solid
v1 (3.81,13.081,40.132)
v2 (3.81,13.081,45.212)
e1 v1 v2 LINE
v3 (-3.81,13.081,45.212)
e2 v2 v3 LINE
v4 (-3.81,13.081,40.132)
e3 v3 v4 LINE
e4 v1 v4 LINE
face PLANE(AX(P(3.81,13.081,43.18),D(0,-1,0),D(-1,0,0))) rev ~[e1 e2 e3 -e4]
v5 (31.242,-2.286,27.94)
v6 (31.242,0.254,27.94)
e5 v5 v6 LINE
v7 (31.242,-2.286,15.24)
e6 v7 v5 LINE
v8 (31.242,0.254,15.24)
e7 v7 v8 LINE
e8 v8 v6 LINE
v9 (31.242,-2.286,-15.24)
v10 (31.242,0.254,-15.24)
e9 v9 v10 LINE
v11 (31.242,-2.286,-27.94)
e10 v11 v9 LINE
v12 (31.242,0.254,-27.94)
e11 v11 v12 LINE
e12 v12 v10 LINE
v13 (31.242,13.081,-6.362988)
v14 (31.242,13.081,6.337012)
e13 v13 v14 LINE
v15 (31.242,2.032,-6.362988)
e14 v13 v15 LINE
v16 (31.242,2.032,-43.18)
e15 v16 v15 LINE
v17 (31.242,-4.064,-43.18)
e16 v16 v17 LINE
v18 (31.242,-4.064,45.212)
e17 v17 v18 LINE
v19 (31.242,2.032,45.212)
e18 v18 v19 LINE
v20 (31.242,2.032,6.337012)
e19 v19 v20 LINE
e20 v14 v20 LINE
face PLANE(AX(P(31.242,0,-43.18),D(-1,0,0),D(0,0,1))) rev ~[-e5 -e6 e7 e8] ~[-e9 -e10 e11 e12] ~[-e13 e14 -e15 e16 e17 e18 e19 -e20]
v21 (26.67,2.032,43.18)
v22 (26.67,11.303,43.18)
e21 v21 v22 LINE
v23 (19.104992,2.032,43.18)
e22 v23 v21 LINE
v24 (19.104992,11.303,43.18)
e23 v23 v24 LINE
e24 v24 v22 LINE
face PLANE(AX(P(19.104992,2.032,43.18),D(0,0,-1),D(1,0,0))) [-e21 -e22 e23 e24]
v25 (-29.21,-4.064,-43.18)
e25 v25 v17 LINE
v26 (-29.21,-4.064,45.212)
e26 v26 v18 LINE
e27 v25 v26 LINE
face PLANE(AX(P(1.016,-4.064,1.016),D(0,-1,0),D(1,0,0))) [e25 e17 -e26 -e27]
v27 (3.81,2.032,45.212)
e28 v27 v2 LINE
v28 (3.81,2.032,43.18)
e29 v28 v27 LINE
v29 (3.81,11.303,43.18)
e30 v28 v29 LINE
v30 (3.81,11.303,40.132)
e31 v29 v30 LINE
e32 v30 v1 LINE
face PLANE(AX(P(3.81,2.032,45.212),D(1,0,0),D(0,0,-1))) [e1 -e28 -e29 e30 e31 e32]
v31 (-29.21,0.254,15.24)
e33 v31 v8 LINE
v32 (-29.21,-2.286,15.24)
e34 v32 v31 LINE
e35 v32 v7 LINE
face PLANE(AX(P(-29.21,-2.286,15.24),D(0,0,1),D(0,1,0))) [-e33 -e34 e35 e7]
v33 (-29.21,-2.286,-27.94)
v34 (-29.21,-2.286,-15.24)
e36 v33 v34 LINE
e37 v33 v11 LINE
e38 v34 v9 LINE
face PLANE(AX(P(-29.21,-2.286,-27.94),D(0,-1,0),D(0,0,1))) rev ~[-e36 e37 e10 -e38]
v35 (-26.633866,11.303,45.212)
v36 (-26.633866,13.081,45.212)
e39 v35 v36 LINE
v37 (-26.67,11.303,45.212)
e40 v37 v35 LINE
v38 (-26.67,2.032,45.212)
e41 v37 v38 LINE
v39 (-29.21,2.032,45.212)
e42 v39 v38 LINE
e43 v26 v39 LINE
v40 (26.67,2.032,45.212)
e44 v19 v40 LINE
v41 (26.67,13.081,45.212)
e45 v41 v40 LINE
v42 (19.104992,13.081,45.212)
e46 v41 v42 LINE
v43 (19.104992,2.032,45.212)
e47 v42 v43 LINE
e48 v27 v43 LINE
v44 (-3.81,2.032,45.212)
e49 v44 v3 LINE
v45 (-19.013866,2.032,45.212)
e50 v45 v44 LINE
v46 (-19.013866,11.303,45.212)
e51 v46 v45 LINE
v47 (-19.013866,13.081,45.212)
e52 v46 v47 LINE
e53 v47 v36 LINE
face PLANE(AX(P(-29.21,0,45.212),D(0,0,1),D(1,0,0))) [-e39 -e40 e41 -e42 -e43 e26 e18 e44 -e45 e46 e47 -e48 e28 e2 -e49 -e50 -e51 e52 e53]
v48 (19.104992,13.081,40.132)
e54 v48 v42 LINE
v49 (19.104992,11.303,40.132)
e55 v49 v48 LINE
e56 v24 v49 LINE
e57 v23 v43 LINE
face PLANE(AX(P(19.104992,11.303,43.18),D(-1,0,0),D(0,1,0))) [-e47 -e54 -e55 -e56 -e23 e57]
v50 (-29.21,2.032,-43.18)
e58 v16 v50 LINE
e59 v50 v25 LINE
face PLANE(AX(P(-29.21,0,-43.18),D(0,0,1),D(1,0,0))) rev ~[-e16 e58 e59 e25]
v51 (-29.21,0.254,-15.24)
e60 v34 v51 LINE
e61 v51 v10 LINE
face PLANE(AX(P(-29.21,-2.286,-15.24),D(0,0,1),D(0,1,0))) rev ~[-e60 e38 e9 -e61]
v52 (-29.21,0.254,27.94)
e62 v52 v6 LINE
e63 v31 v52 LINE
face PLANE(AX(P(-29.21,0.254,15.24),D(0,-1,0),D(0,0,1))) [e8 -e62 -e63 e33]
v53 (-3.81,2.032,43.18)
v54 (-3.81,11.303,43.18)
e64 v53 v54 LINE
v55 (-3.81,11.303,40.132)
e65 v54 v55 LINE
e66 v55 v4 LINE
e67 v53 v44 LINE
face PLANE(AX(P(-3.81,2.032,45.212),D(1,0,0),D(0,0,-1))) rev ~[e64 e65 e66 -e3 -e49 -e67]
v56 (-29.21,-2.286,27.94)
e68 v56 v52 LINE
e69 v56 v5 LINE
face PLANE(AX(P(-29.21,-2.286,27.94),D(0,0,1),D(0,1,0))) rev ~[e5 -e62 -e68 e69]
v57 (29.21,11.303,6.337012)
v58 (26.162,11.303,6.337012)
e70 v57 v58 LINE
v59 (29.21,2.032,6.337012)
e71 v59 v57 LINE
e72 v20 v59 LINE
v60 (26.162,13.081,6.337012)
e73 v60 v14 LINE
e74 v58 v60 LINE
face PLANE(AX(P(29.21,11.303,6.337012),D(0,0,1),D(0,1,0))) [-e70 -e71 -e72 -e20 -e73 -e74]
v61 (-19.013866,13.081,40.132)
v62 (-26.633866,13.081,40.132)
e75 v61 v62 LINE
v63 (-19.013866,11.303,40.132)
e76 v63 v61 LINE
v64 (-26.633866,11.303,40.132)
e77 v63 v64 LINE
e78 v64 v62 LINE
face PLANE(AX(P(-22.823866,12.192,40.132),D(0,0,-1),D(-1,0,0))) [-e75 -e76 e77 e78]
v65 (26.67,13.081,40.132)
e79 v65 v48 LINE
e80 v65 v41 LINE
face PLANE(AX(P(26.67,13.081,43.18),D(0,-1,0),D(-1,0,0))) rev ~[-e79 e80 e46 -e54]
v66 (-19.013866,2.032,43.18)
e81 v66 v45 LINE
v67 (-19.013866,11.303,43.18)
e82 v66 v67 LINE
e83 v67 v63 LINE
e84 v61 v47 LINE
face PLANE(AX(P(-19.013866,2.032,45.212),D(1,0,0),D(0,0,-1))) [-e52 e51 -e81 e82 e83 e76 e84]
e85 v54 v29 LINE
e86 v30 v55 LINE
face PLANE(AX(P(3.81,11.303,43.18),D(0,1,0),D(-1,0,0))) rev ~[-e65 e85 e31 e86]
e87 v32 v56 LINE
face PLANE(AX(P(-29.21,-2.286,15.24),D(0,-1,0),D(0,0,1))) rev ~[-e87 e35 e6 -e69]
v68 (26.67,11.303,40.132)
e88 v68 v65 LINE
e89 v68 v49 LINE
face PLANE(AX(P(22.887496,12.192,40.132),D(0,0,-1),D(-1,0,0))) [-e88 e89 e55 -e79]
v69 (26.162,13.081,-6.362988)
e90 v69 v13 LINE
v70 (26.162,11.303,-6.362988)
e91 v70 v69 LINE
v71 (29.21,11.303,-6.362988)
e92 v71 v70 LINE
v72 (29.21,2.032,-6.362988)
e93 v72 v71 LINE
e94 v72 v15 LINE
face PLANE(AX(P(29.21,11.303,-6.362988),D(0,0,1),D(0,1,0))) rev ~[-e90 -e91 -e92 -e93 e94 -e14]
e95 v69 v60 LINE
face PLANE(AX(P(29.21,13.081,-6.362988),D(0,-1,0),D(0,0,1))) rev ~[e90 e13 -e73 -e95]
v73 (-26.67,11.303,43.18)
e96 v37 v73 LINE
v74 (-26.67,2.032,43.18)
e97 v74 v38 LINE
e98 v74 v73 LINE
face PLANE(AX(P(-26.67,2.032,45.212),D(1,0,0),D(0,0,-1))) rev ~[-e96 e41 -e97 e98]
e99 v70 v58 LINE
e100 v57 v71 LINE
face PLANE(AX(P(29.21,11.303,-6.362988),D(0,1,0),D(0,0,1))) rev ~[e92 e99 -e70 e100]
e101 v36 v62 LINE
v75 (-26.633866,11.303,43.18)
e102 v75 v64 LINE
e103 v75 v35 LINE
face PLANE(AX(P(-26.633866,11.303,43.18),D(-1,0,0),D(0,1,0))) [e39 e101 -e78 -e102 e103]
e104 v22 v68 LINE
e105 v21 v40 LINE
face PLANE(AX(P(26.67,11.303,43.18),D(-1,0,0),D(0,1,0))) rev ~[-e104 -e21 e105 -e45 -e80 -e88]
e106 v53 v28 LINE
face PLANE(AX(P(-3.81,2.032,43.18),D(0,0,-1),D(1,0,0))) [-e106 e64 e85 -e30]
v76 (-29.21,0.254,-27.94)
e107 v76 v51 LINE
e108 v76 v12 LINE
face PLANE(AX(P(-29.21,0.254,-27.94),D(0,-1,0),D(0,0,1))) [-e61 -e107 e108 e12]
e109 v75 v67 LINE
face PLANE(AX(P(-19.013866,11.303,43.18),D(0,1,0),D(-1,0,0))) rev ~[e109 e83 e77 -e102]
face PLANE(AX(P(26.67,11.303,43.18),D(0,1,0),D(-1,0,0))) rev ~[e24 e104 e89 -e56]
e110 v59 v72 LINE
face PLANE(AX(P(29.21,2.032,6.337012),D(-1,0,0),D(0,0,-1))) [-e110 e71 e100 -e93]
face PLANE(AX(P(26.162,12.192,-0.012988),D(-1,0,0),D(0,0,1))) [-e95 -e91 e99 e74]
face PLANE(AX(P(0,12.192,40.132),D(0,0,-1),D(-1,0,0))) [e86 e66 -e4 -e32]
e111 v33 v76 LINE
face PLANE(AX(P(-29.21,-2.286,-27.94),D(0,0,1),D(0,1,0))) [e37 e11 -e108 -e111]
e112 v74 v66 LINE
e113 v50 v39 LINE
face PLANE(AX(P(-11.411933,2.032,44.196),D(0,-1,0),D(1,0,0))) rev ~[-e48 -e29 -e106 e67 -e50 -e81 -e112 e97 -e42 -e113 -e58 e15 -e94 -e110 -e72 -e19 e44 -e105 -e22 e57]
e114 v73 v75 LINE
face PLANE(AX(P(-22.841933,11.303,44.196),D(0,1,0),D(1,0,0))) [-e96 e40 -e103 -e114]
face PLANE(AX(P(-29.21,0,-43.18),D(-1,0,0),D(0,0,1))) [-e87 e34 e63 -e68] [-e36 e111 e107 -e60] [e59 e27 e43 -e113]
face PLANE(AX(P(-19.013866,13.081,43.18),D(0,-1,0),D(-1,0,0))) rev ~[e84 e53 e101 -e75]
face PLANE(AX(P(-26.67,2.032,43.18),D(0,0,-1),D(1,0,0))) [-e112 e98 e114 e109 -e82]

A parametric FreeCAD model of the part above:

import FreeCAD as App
import Part
import Sketcher

V = App.Vector
Q = App.Units.Quantity

doc = App.newDocument("Part")
body = doc.addObject("PartDesign::Body", "Body")

# Sketch on XZ plane
sketch1 = body.newObject("Sketcher::SketchObject", "Sketch")
sketch1.AttachmentSupport = (doc.getObject("XZ_Plane"), [""])
sketch1.MapMode = "FlatFace"
sketch1.addGeometry(Part.LineSegment(V(-29, -43, 0), V(-29, 43, 0)), False)
sketch1.addGeometry(Part.LineSegment(V(-29, 43, 0), V(29, 43, 0)), False)
sketch1.addGeometry(Part.LineSegment(V(29, 43, 0), V(29, -43, 0)), False)
sketch1.addGeometry(Part.LineSegment(V(29, -43, 0), V(-29, -43, 0)), False)
sketch1.addConstraint(Sketcher.Constraint("Coincident", 0, 2, 1, 1))
sketch1.addConstraint(Sketcher.Constraint("Coincident", 1, 2, 2, 1))
sketch1.addConstraint(Sketcher.Constraint("Coincident", 2, 2, 3, 1))
sketch1.addConstraint(Sketcher.Constraint("Coincident", 3, 2, 0, 1))
sketch1.addConstraint(Sketcher.Constraint("Vertical", 0))
sketch1.addConstraint(Sketcher.Constraint("Horizontal", 1))
sketch1.addConstraint(Sketcher.Constraint("Vertical", 2))
sketch1.addConstraint(Sketcher.Constraint("Horizontal", 3))
sketch1.addConstraint(Sketcher.Constraint("Symmetric", 0, 2, 2, 2, -1, 1))
sketch1.addConstraint(Sketcher.Constraint("DistanceX", 1, 1, 1, 2, Q("2.3 in")))
sketch1.addConstraint(Sketcher.Constraint("DistanceY", 0, 1, 0, 2, Q("3.4 in")))
pad1 = body.newObject("PartDesign::Pad", "Pad")
pad1.Profile = sketch1
pad1.Length = Q("0.08 in")
pad1.Reversed = True
body2 = doc.addObject("PartDesign::Body", "Body001")

# Sketch on XZ plane
sketch2 = body2.newObject("Sketcher::SketchObject", "Sketch001")
sketch2.AttachmentSupport = (doc.getObject("XZ_Plane001"), [""])
sketch2.MapMode = "FlatFace"
sketch2.AttachmentOffset = App.Placement(V(0, 0, -0.08 * 25.4), App.Rotation())
sketch2.addGeometry(Part.LineSegment(V(-3.8, 43.2, 0), V(-3.8, 45.2, 0)), False)
sketch2.addGeometry(Part.LineSegment(V(-3.8, 45.2, 0), V(3.8, 45.2, 0)), False)
sketch2.addGeometry(Part.LineSegment(V(3.8, 45.2, 0), V(3.8, 43.2, 0)), False)
sketch2.addGeometry(Part.LineSegment(V(3.8, 43.2, 0), V(-3.8, 43.2, 0)), False)
sketch2.addConstraint(Sketcher.Constraint("Coincident", 0, 2, 1, 1))
sketch2.addConstraint(Sketcher.Constraint("Coincident", 1, 2, 2, 1))
sketch2.addConstraint(Sketcher.Constraint("Coincident", 2, 2, 3, 1))
sketch2.addConstraint(Sketcher.Constraint("Coincident", 3, 2, 0, 1))
sketch2.addConstraint(Sketcher.Constraint("Vertical", 0))
sketch2.addConstraint(Sketcher.Constraint("Horizontal", 1))
sketch2.addConstraint(Sketcher.Constraint("Vertical", 2))
sketch2.addConstraint(Sketcher.Constraint("Horizontal", 3))
sketch2.addConstraint(Sketcher.Constraint("DistanceX", 1, 1, 1, 2, Q("0.3 in")))
sketch2.addConstraint(Sketcher.Constraint("DistanceY", 0, 1, 0, 2, Q("0.08 in")))
sketch2.addConstraint(Sketcher.Constraint("DistanceY", -1, 1, 2, 2, Q("1.7 in")))
sketch2.addConstraint(Sketcher.Constraint("DistanceX", 0, 2, -1, 1, Q("0.15 in")))
pad2 = body2.newObject("PartDesign::Pad", "Pad001")
pad2.Profile = sketch2
pad2.Length = Q("0.365 in")
pad2.Reversed = True
body3 = doc.addObject("PartDesign::Body", "Body002")

# Sketch on XZ plane
sketch3 = body3.newObject("Sketcher::SketchObject", "Sketch002")
sketch3.AttachmentSupport = (doc.getObject("XZ_Plane002"), [""])
sketch3.MapMode = "FlatFace"
sketch3.AttachmentOffset = App.Placement(V(0, 0, -0.08 * 25.4), App.Rotation())
sketch3.addGeometry(Part.LineSegment(V(-26.7, 43.2, 0), V(-26.7, 45.2, 0)), False)
sketch3.addGeometry(Part.LineSegment(V(-26.7, 45.2, 0), V(-19, 45.2, 0)), False)
sketch3.addGeometry(Part.LineSegment(V(-19, 45.2, 0), V(-19, 43.2, 0)), False)
sketch3.addGeometry(Part.LineSegment(V(-19, 43.2, 0), V(-26.7, 43.2, 0)), False)
sketch3.addConstraint(Sketcher.Constraint("Coincident", 0, 2, 1, 1))
sketch3.addConstraint(Sketcher.Constraint("Coincident", 1, 2, 2, 1))
sketch3.addConstraint(Sketcher.Constraint("Coincident", 2, 2, 3, 1))
sketch3.addConstraint(Sketcher.Constraint("Coincident", 3, 2, 0, 1))
sketch3.addConstraint(Sketcher.Constraint("Vertical", 0))
sketch3.addConstraint(Sketcher.Constraint("Horizontal", 1))
sketch3.addConstraint(Sketcher.Constraint("Vertical", 2))
sketch3.addConstraint(Sketcher.Constraint("Horizontal", 3))
sketch3.addConstraint(Sketcher.Constraint("DistanceY", 0, 1, 0, 2, Q("0.08 in")))
sketch3.addConstraint(Sketcher.Constraint("DistanceY", -1, 1, 2, 2, Q("1.7 in")))
sketch3.addConstraint(Sketcher.Constraint("DistanceX", 0, 2, -1, 1, Q("1.05 in")))
sketch3.addConstraint(Sketcher.Constraint("DistanceX", 1, 1, 1, 2, Q("7.656134 mm")))
pad3 = body3.newObject("PartDesign::Pad", "Pad002")
pad3.Profile = sketch3
pad3.Length = Q("0.365 in")
pad3.Reversed = True
body4 = doc.addObject("PartDesign::Body", "Body003")

# Sketch on XZ plane
sketch4 = body4.newObject("Sketcher::SketchObject", "Sketch003")
sketch4.AttachmentSupport = (doc.getObject("XZ_Plane003"), [""])
sketch4.MapMode = "FlatFace"
sketch4.AttachmentOffset = App.Placement(V(0, 0, -0.08 * 25.4), App.Rotation())
sketch4.addGeometry(Part.LineSegment(V(19.1, 43.2, 0), V(19.1, 45.2, 0)), False)
sketch4.addGeometry(Part.LineSegment(V(19.1, 45.2, 0), V(26.7, 45.2, 0)), False)
sketch4.addGeometry(Part.LineSegment(V(26.7, 45.2, 0), V(26.7, 43.2, 0)), False)
sketch4.addGeometry(Part.LineSegment(V(26.7, 43.2, 0), V(19.1, 43.2, 0)), False)
sketch4.addConstraint(Sketcher.Constraint("Coincident", 0, 2, 1, 1))
sketch4.addConstraint(Sketcher.Constraint("Coincident", 1, 2, 2, 1))
sketch4.addConstraint(Sketcher.Constraint("Coincident", 2, 2, 3, 1))
sketch4.addConstraint(Sketcher.Constraint("Coincident", 3, 2, 0, 1))
sketch4.addConstraint(Sketcher.Constraint("Vertical", 0))
sketch4.addConstraint(Sketcher.Constraint("Horizontal", 1))
sketch4.addConstraint(Sketcher.Constraint("Vertical", 2))
sketch4.addConstraint(Sketcher.Constraint("Horizontal", 3))
sketch4.addConstraint(Sketcher.Constraint("DistanceY", 0, 1, 0, 2, Q("0.08 in")))
sketch4.addConstraint(Sketcher.Constraint("DistanceY", -1, 1, 2, 2, Q("1.7 in")))
sketch4.addConstraint(Sketcher.Constraint("DistanceX", -1, 1, 1, 2, Q("1.05 in")))
sketch4.addConstraint(Sketcher.Constraint("DistanceX", 1, 1, 1, 2, Q("7.565008 mm")))
pad4 = body4.newObject("PartDesign::Pad", "Pad003")
pad4.Profile = sketch4
pad4.Length = Q("0.365 in")
pad4.Reversed = True
body5 = doc.addObject("PartDesign::Body", "Body004")

# Sketch on XZ plane
sketch5 = body5.newObject("Sketcher::SketchObject", "Sketch004")
sketch5.AttachmentSupport = (doc.getObject("XZ_Plane004"), [""])
sketch5.MapMode = "FlatFace"
sketch5.AttachmentOffset = App.Placement(V(0, 0, -0.08 * 25.4), App.Rotation())
sketch5.addGeometry(Part.LineSegment(V(29.2, -6.4, 0), V(29.2, 6.3, 0)), False)
sketch5.addGeometry(Part.LineSegment(V(29.2, 6.3, 0), V(31.2, 6.3, 0)), False)
sketch5.addGeometry(Part.LineSegment(V(31.2, 6.3, 0), V(31.2, -6.4, 0)), False)
sketch5.addGeometry(Part.LineSegment(V(31.2, -6.4, 0), V(29.2, -6.4, 0)), False)
sketch5.addConstraint(Sketcher.Constraint("Coincident", 0, 2, 1, 1))
sketch5.addConstraint(Sketcher.Constraint("Coincident", 1, 2, 2, 1))
sketch5.addConstraint(Sketcher.Constraint("Coincident", 2, 2, 3, 1))
sketch5.addConstraint(Sketcher.Constraint("Coincident", 3, 2, 0, 1))
sketch5.addConstraint(Sketcher.Constraint("Vertical", 0))
sketch5.addConstraint(Sketcher.Constraint("Horizontal", 1))
sketch5.addConstraint(Sketcher.Constraint("Vertical", 2))
sketch5.addConstraint(Sketcher.Constraint("Horizontal", 3))
sketch5.addConstraint(Sketcher.Constraint("DistanceY", 0, 1, 0, 2, Q("0.5 in")))
sketch5.addConstraint(Sketcher.Constraint("DistanceX", 1, 1, 1, 2, Q("0.08 in")))
sketch5.addConstraint(Sketcher.Constraint("DistanceX", -1, 1, 0, 2, Q("1.15 in")))
sketch5.addConstraint(Sketcher.Constraint("DistanceY", -1, 1, 0, 2, Q("6.337012 mm")))
pad5 = body5.newObject("PartDesign::Pad", "Pad004")
pad5.Profile = sketch5
pad5.Length = Q("0.365 in")
pad5.Reversed = True
body.AllowCompound = True
doc.recompute()

boolean = body.newObject("PartDesign::Boolean", "Boolean")
boolean.Type = "Fuse"
boolean.addObjects([body2])
doc.recompute()

boolean2 = body.newObject("PartDesign::Boolean", "Boolean001")
boolean2.Type = "Fuse"
boolean2.addObjects([body3])
doc.recompute()

boolean3 = body.newObject("PartDesign::Boolean", "Boolean002")
boolean3.Type = "Fuse"
boolean3.addObjects([body4])
doc.recompute()

boolean4 = body.newObject("PartDesign::Boolean", "Boolean003")
boolean4.Type = "Fuse"
boolean4.addObjects([body5])

# Sketch on XZ plane
sketch6 = body.newObject("Sketcher::SketchObject", "Sketch005")
sketch6.AttachmentSupport = (doc.getObject("XZ_Plane"), [""])
sketch6.MapMode = "FlatFace"
sketch6.AttachmentOffset = App.Placement(V(0, 0, -0.08 * 25.4), App.Rotation())
sketch6.addGeometry(Part.LineSegment(V(-3.8, 43.2, 0), V(-3.8, 45.2, 0)), False)
sketch6.addGeometry(Part.LineSegment(V(-3.8, 45.2, 0), V(3.8, 45.2, 0)), False)
sketch6.addGeometry(Part.LineSegment(V(3.8, 45.2, 0), V(3.8, 43.2, 0)), False)
sketch6.addGeometry(Part.LineSegment(V(3.8, 43.2, 0), V(-3.8, 43.2, 0)), False)
sketch6.addGeometry(Part.LineSegment(V(-26.7, 43.2, 0), V(-26.7, 45.2, 0)), False)
sketch6.addGeometry(Part.LineSegment(V(-26.7, 45.2, 0), V(-19, 45.2, 0)), False)
sketch6.addGeometry(Part.LineSegment(V(-19, 45.2, 0), V(-19, 43.2, 0)), False)
sketch6.addGeometry(Part.LineSegment(V(-19, 43.2, 0), V(-26.7, 43.2, 0)), False)
sketch6.addGeometry(Part.LineSegment(V(19.1, 43.2, 0), V(19.1, 45.2, 0)), False)
sketch6.addGeometry(Part.LineSegment(V(19.1, 45.2, 0), V(26.7, 45.2, 0)), False)
sketch6.addGeometry(Part.LineSegment(V(26.7, 45.2, 0), V(26.7, 43.2, 0)), False)
sketch6.addGeometry(Part.LineSegment(V(26.7, 43.2, 0), V(19.1, 43.2, 0)), False)
sketch6.addGeometry(Part.LineSegment(V(29.2, -6.4, 0), V(29.2, 6.3, 0)), False)
sketch6.addGeometry(Part.LineSegment(V(29.2, 6.3, 0), V(31.2, 6.3, 0)), False)
sketch6.addGeometry(Part.LineSegment(V(31.2, 6.3, 0), V(31.2, -6.4, 0)), False)
sketch6.addGeometry(Part.LineSegment(V(31.2, -6.4, 0), V(29.2, -6.4, 0)), False)
sketch6.addConstraint(Sketcher.Constraint("Coincident", 0, 2, 1, 1))
sketch6.addConstraint(Sketcher.Constraint("Coincident", 1, 2, 2, 1))
sketch6.addConstraint(Sketcher.Constraint("Coincident", 2, 2, 3, 1))
sketch6.addConstraint(Sketcher.Constraint("Coincident", 3, 2, 0, 1))
sketch6.addConstraint(Sketcher.Constraint("Coincident", 4, 2, 5, 1))
sketch6.addConstraint(Sketcher.Constraint("Coincident", 5, 2, 6, 1))
sketch6.addConstraint(Sketcher.Constraint("Coincident", 6, 2, 7, 1))
sketch6.addConstraint(Sketcher.Constraint("Coincident", 7, 2, 4, 1))
sketch6.addConstraint(Sketcher.Constraint("Coincident", 8, 2, 9, 1))
sketch6.addConstraint(Sketcher.Constraint("Coincident", 9, 2, 10, 1))
sketch6.addConstraint(Sketcher.Constraint("Coincident", 10, 2, 11, 1))
sketch6.addConstraint(Sketcher.Constraint("Coincident", 11, 2, 8, 1))
sketch6.addConstraint(Sketcher.Constraint("Coincident", 12, 2, 13, 1))
sketch6.addConstraint(Sketcher.Constraint("Coincident", 13, 2, 14, 1))
sketch6.addConstraint(Sketcher.Constraint("Coincident", 14, 2, 15, 1))
sketch6.addConstraint(Sketcher.Constraint("Coincident", 15, 2, 12, 1))
sketch6.addConstraint(Sketcher.Constraint("Vertical", 0))
sketch6.addConstraint(Sketcher.Constraint("Horizontal", 1))
sketch6.addConstraint(Sketcher.Constraint("Vertical", 2))
sketch6.addConstraint(Sketcher.Constraint("Horizontal", 3))
sketch6.addConstraint(Sketcher.Constraint("Vertical", 4))
sketch6.addConstraint(Sketcher.Constraint("Horizontal", 5))
sketch6.addConstraint(Sketcher.Constraint("Vertical", 6))
sketch6.addConstraint(Sketcher.Constraint("Horizontal", 7))
sketch6.addConstraint(Sketcher.Constraint("Vertical", 8))
sketch6.addConstraint(Sketcher.Constraint("Horizontal", 9))
sketch6.addConstraint(Sketcher.Constraint("Vertical", 10))
sketch6.addConstraint(Sketcher.Constraint("Horizontal", 11))
sketch6.addConstraint(Sketcher.Constraint("Vertical", 12))
sketch6.addConstraint(Sketcher.Constraint("Horizontal", 13))
sketch6.addConstraint(Sketcher.Constraint("Vertical", 14))
sketch6.addConstraint(Sketcher.Constraint("Horizontal", 15))
sketch6.addConstraint(Sketcher.Constraint("Symmetric", 4, 2, 9, 2, -2))
sketch6.addConstraint(Sketcher.Constraint("Horizontal", 1, 2, 4, 2))
sketch6.addConstraint(Sketcher.Constraint("Horizontal", 3, 2, 6, 2))
sketch6.addConstraint(Sketcher.Constraint("Horizontal", 7, 2, 10, 2))
sketch6.addConstraint(Sketcher.Constraint("Equal", 15, 0))
sketch6.addConstraint(Sketcher.Constraint("DistanceX", 1, 1, 1, 2, Q("0.3 in")))
sketch6.addConstraint(Sketcher.Constraint("DistanceY", 12, 1, 12, 2, Q("0.5 in")))
sketch6.addConstraint(Sketcher.Constraint("DistanceX", 2, 2, 12, 2, Q("1 in")))
sketch6.addConstraint(Sketcher.Constraint("DistanceX", 13, 1, 13, 2, Q("0.08 in")))
sketch6.addConstraint(Sketcher.Constraint("DistanceY", -1, 1, 2, 2, Q("1.7 in")))
sketch6.addConstraint(Sketcher.Constraint("DistanceX", 4, 2, 0, 2, Q("0.9 in")))
sketch6.addConstraint(Sketcher.Constraint("DistanceX", 1, 2, 9, 2, Q("0.9 in")))
sketch6.addConstraint(Sketcher.Constraint("DistanceX", 5, 1, 5, 2, Q("7.656134 mm")))
sketch6.addConstraint(Sketcher.Constraint("DistanceX", 9, 1, 9, 2, Q("7.565008 mm")))
sketch6.addConstraint(Sketcher.Constraint("DistanceY", -1, 1, 12, 2, Q("6.337012 mm")))
pad6 = body.newObject("PartDesign::Pad", "Pad005")
pad6.Profile = sketch6
pad6.Length = Q("0.08 in")
body6 = doc.addObject("PartDesign::Body", "Body005")

# Sketch on XY plane
sketch7 = body6.newObject("Sketcher::SketchObject", "Sketch006")
sketch7.AttachmentSupport = (doc.getObject("XY_Plane005"), [""])
sketch7.MapMode = "FlatFace"
sketch7.AttachmentOffset = App.Placement(V(0, 0, 1.7 * 25.4), App.Rotation())
sketch7.addGeometry(Part.LineSegment(V(26.7, 13.1, 0), V(26.7, 11.3, 0)), False)
sketch7.addGeometry(Part.LineSegment(V(26.7, 11.3, 0), V(19.1, 11.3, 0)), False)
sketch7.addGeometry(Part.LineSegment(V(19.1, 11.3, 0), V(19.1, 13.1, 0)), False)
sketch7.addGeometry(Part.LineSegment(V(19.1, 13.1, 0), V(26.7, 13.1, 0)), False)
sketch7.addConstraint(Sketcher.Constraint("Coincident", 0, 2, 1, 1))
sketch7.addConstraint(Sketcher.Constraint("Coincident", 1, 2, 2, 1))
sketch7.addConstraint(Sketcher.Constraint("Coincident", 2, 2, 3, 1))
sketch7.addConstraint(Sketcher.Constraint("Coincident", 3, 2, 0, 1))
sketch7.addConstraint(Sketcher.Constraint("Vertical", 0))
sketch7.addConstraint(Sketcher.Constraint("Horizontal", 1))
sketch7.addConstraint(Sketcher.Constraint("Vertical", 2))
sketch7.addConstraint(Sketcher.Constraint("Horizontal", 3))
sketch7.addConstraint(Sketcher.Constraint("DistanceY", 0, 2, 0, 1, Q("0.07 in")))
sketch7.addConstraint(Sketcher.Constraint("DistanceX", -1, 1, 0, 2, Q("1.05 in")))
sketch7.addConstraint(Sketcher.Constraint("DistanceY", -1, 1, 0, 2, Q("0.445 in")))
sketch7.addConstraint(Sketcher.Constraint("DistanceX", 1, 2, 1, 1, Q("7.565008 mm")))
pad7 = body6.newObject("PartDesign::Pad", "Pad006")
pad7.Profile = sketch7
pad7.Length = Q("0.12 in")
pad7.Reversed = True
body7 = doc.addObject("PartDesign::Body", "Body006")

# Sketch on XY plane
sketch8 = body7.newObject("Sketcher::SketchObject", "Sketch007")
sketch8.AttachmentSupport = (doc.getObject("XY_Plane006"), [""])
sketch8.MapMode = "FlatFace"
sketch8.AttachmentOffset = App.Placement(V(0, 0, 1.7 * 25.4), App.Rotation())
sketch8.addGeometry(Part.LineSegment(V(3.8, 13.1, 0), V(3.8, 11.3, 0)), False)
sketch8.addGeometry(Part.LineSegment(V(3.8, 11.3, 0), V(-3.8, 11.3, 0)), False)
sketch8.addGeometry(Part.LineSegment(V(-3.8, 11.3, 0), V(-3.8, 13.1, 0)), False)
sketch8.addGeometry(Part.LineSegment(V(-3.8, 13.1, 0), V(3.8, 13.1, 0)), False)
sketch8.addConstraint(Sketcher.Constraint("Coincident", 0, 2, 1, 1))
sketch8.addConstraint(Sketcher.Constraint("Coincident", 1, 2, 2, 1))
sketch8.addConstraint(Sketcher.Constraint("Coincident", 2, 2, 3, 1))
sketch8.addConstraint(Sketcher.Constraint("Coincident", 3, 2, 0, 1))
sketch8.addConstraint(Sketcher.Constraint("Vertical", 0))
sketch8.addConstraint(Sketcher.Constraint("Horizontal", 1))
sketch8.addConstraint(Sketcher.Constraint("Vertical", 2))
sketch8.addConstraint(Sketcher.Constraint("Horizontal", 3))
sketch8.addConstraint(Sketcher.Constraint("DistanceX", 1, 2, 1, 1, Q("0.3 in")))
sketch8.addConstraint(Sketcher.Constraint("DistanceY", 0, 2, 0, 1, Q("0.07 in")))
sketch8.addConstraint(Sketcher.Constraint("DistanceX", -1, 1, 0, 2, Q("0.15 in")))
sketch8.addConstraint(Sketcher.Constraint("DistanceY", -1, 1, 0, 2, Q("0.445 in")))
pad8 = body7.newObject("PartDesign::Pad", "Pad007")
pad8.Profile = sketch8
pad8.Length = Q("0.12 in")
pad8.Reversed = True
body8 = doc.addObject("PartDesign::Body", "Body007")

# Sketch on XY plane
sketch9 = body8.newObject("Sketcher::SketchObject", "Sketch008")
sketch9.AttachmentSupport = (doc.getObject("XY_Plane007"), [""])
sketch9.MapMode = "FlatFace"
sketch9.AttachmentOffset = App.Placement(V(0, 0, 1.7 * 25.4), App.Rotation())
sketch9.addGeometry(Part.LineSegment(V(-19, 13.1, 0), V(-19, 11.3, 0)), False)
sketch9.addGeometry(Part.LineSegment(V(-19, 11.3, 0), V(-26.6, 11.3, 0)), False)
sketch9.addGeometry(Part.LineSegment(V(-26.6, 11.3, 0), V(-26.6, 13.1, 0)), False)
sketch9.addGeometry(Part.LineSegment(V(-26.6, 13.1, 0), V(-19, 13.1, 0)), False)
sketch9.addConstraint(Sketcher.Constraint("Coincident", 0, 2, 1, 1))
sketch9.addConstraint(Sketcher.Constraint("Coincident", 1, 2, 2, 1))
sketch9.addConstraint(Sketcher.Constraint("Coincident", 2, 2, 3, 1))
sketch9.addConstraint(Sketcher.Constraint("Coincident", 3, 2, 0, 1))
sketch9.addConstraint(Sketcher.Constraint("Vertical", 0))
sketch9.addConstraint(Sketcher.Constraint("Horizontal", 1))
sketch9.addConstraint(Sketcher.Constraint("Vertical", 2))
sketch9.addConstraint(Sketcher.Constraint("Horizontal", 3))
sketch9.addConstraint(Sketcher.Constraint("DistanceX", 1, 2, 1, 1, Q("0.3 in")))
sketch9.addConstraint(Sketcher.Constraint("DistanceY", 0, 2, 0, 1, Q("0.07 in")))
sketch9.addConstraint(Sketcher.Constraint("DistanceY", -1, 1, 0, 2, Q("0.445 in")))
sketch9.addConstraint(Sketcher.Constraint("DistanceX", 0, 2, -1, 1, Q("19.013866 mm")))
pad9 = body8.newObject("PartDesign::Pad", "Pad008")
pad9.Profile = sketch9
pad9.Length = Q("0.12 in")
pad9.Reversed = True
body.AllowCompound = True
doc.recompute()

boolean5 = body.newObject("PartDesign::Boolean", "Boolean004")
boolean5.Type = "Fuse"
boolean5.addObjects([body6])
doc.recompute()

boolean6 = body.newObject("PartDesign::Boolean", "Boolean005")
boolean6.Type = "Fuse"
boolean6.addObjects([body7])
doc.recompute()

boolean7 = body.newObject("PartDesign::Boolean", "Boolean006")
boolean7.Type = "Fuse"
boolean7.addObjects([body8])

# Sketch on XY plane
sketch10 = body.newObject("Sketcher::SketchObject", "Sketch009")
sketch10.AttachmentSupport = (doc.getObject("XY_Plane"), [""])
sketch10.MapMode = "FlatFace"
sketch10.AttachmentOffset = App.Placement(V(0, 0, 1.7 * 25.4), App.Rotation())
sketch10.addGeometry(Part.LineSegment(V(26.7, 13.1, 0), V(26.7, 11.3, 0)), False)
sketch10.addGeometry(Part.LineSegment(V(26.7, 11.3, 0), V(19.1, 11.3, 0)), False)
sketch10.addGeometry(Part.LineSegment(V(19.1, 11.3, 0), V(19.1, 13.1, 0)), False)
sketch10.addGeometry(Part.LineSegment(V(19.1, 13.1, 0), V(26.7, 13.1, 0)), False)
sketch10.addGeometry(Part.LineSegment(V(3.8, 13.1, 0), V(3.8, 11.3, 0)), False)
sketch10.addGeometry(Part.LineSegment(V(3.8, 11.3, 0), V(-3.8, 11.3, 0)), False)
sketch10.addGeometry(Part.LineSegment(V(-3.8, 11.3, 0), V(-3.8, 13.1, 0)), False)
sketch10.addGeometry(Part.LineSegment(V(-3.8, 13.1, 0), V(3.8, 13.1, 0)), False)
sketch10.addGeometry(Part.LineSegment(V(-19, 13.1, 0), V(-19, 11.3, 0)), False)
sketch10.addGeometry(Part.LineSegment(V(-19, 11.3, 0), V(-26.6, 11.3, 0)), False)
sketch10.addGeometry(Part.LineSegment(V(-26.6, 11.3, 0), V(-26.6, 13.1, 0)), False)
sketch10.addGeometry(Part.LineSegment(V(-26.6, 13.1, 0), V(-19, 13.1, 0)), False)
sketch10.addConstraint(Sketcher.Constraint("Coincident", 0, 2, 1, 1))
sketch10.addConstraint(Sketcher.Constraint("Coincident", 1, 2, 2, 1))
sketch10.addConstraint(Sketcher.Constraint("Coincident", 2, 2, 3, 1))
sketch10.addConstraint(Sketcher.Constraint("Coincident", 3, 2, 0, 1))
sketch10.addConstraint(Sketcher.Constraint("Coincident", 4, 2, 5, 1))
sketch10.addConstraint(Sketcher.Constraint("Coincident", 5, 2, 6, 1))
sketch10.addConstraint(Sketcher.Constraint("Coincident", 6, 2, 7, 1))
sketch10.addConstraint(Sketcher.Constraint("Coincident", 7, 2, 4, 1))
sketch10.addConstraint(Sketcher.Constraint("Coincident", 8, 2, 9, 1))
sketch10.addConstraint(Sketcher.Constraint("Coincident", 9, 2, 10, 1))
sketch10.addConstraint(Sketcher.Constraint("Coincident", 10, 2, 11, 1))
sketch10.addConstraint(Sketcher.Constraint("Coincident", 11, 2, 8, 1))
sketch10.addConstraint(Sketcher.Constraint("Vertical", 0))
sketch10.addConstraint(Sketcher.Constraint("Horizontal", 1))
sketch10.addConstraint(Sketcher.Constraint("Vertical", 2))
sketch10.addConstraint(Sketcher.Constraint("Horizontal", 3))
sketch10.addConstraint(Sketcher.Constraint("Vertical", 4))
sketch10.addConstraint(Sketcher.Constraint("Horizontal", 5))
sketch10.addConstraint(Sketcher.Constraint("Vertical", 6))
sketch10.addConstraint(Sketcher.Constraint("Horizontal", 7))
sketch10.addConstraint(Sketcher.Constraint("Vertical", 8))
sketch10.addConstraint(Sketcher.Constraint("Horizontal", 9))
sketch10.addConstraint(Sketcher.Constraint("Vertical", 10))
sketch10.addConstraint(Sketcher.Constraint("Horizontal", 11))
sketch10.addConstraint(Sketcher.Constraint("Horizontal", 1, 2, 4, 2))
sketch10.addConstraint(Sketcher.Constraint("Horizontal", 3, 2, 6, 2))
sketch10.addConstraint(Sketcher.Constraint("Horizontal", 5, 2, 8, 2))
sketch10.addConstraint(Sketcher.Constraint("Horizontal", 7, 2, 10, 2))
sketch10.addConstraint(Sketcher.Constraint("Equal", 7, 9))
sketch10.addConstraint(Sketcher.Constraint("DistanceX", 5, 2, 5, 1, Q("0.3 in")))
sketch10.addConstraint(Sketcher.Constraint("DistanceY", 0, 2, 0, 1, Q("0.07 in")))
sketch10.addConstraint(Sketcher.Constraint("DistanceX", 4, 2, 0, 2, Q("0.9 in")))
sketch10.addConstraint(Sketcher.Constraint("DistanceX", -1, 1, 0, 2, Q("1.05 in")))
sketch10.addConstraint(Sketcher.Constraint("DistanceY", -1, 1, 0, 2, Q("0.445 in")))
sketch10.addConstraint(Sketcher.Constraint("DistanceX", 1, 2, 1, 1, Q("7.565008 mm")))
sketch10.addConstraint(Sketcher.Constraint("DistanceX", 8, 2, 1, 2, Q("38.118859 mm")))
pad10 = body.newObject("PartDesign::Pad", "Pad009")
pad10.Profile = sketch10
pad10.Length = Q("0.08 in")

# Sketch on XZ plane
sketch11 = body.newObject("Sketcher::SketchObject", "Sketch010")
sketch11.AttachmentSupport = (doc.getObject("XZ_Plane"), [""])
sketch11.MapMode = "FlatFace"
sketch11.addGeometry(Part.LineSegment(V(-19, 45.2, 0), V(-19, 43.2, 0)), False)
sketch11.addGeometry(Part.LineSegment(V(-19, 43.2, 0), V(-3.8, 43.2, 0)), False)
sketch11.addGeometry(Part.LineSegment(V(-3.8, 43.2, 0), V(-3.8, 45.2, 0)), False)
sketch11.addGeometry(Part.LineSegment(V(-3.8, 45.2, 0), V(-19, 45.2, 0)), False)
sketch11.addGeometry(Part.LineSegment(V(3.8, 45.2, 0), V(3.8, 43.2, 0)), False)
sketch11.addGeometry(Part.LineSegment(V(3.8, 43.2, 0), V(19.1, 43.2, 0)), False)
sketch11.addGeometry(Part.LineSegment(V(19.1, 43.2, 0), V(19.1, 45.2, 0)), False)
sketch11.addGeometry(Part.LineSegment(V(19.1, 45.2, 0), V(3.8, 45.2, 0)), False)
sketch11.addGeometry(Part.LineSegment(V(-29.2, 45.2, 0), V(-29.2, 43.2, 0)), False)
sketch11.addGeometry(Part.LineSegment(V(-29.2, 43.2, 0), V(-26.7, 43.2, 0)), False)
sketch11.addGeometry(Part.LineSegment(V(-26.7, 43.2, 0), V(-26.7, 45.2, 0)), False)
sketch11.addGeometry(Part.LineSegment(V(-26.7, 45.2, 0), V(-29.2, 45.2, 0)), False)
sketch11.addGeometry(Part.LineSegment(V(26.7, 43.2, 0), V(29.2, 43.2, 0)), False)
sketch11.addGeometry(Part.LineSegment(V(29.2, 43.2, 0), V(29.2, 6.3, 0)), False)
sketch11.addGeometry(Part.LineSegment(V(29.2, 6.3, 0), V(31.2, 6.3, 0)), False)
sketch11.addGeometry(Part.LineSegment(V(31.2, 6.3, 0), V(31.2, 45.2, 0)), False)
sketch11.addGeometry(Part.LineSegment(V(31.2, 45.2, 0), V(26.7, 45.2, 0)), False)
sketch11.addGeometry(Part.LineSegment(V(26.7, 45.2, 0), V(26.7, 43.2, 0)), False)
sketch11.addGeometry(Part.LineSegment(V(29.2, -6.4, 0), V(29.2, -43.2, 0)), False)
sketch11.addGeometry(Part.LineSegment(V(29.2, -43.2, 0), V(31.2, -43.2, 0)), False)
sketch11.addGeometry(Part.LineSegment(V(31.2, -43.2, 0), V(31.2, -6.4, 0)), False)
sketch11.addGeometry(Part.LineSegment(V(31.2, -6.4, 0), V(29.2, -6.4, 0)), False)
sketch11.addConstraint(Sketcher.Constraint("Coincident", 0, 2, 1, 1))
sketch11.addConstraint(Sketcher.Constraint("Coincident", 1, 2, 2, 1))
sketch11.addConstraint(Sketcher.Constraint("Coincident", 2, 2, 3, 1))
sketch11.addConstraint(Sketcher.Constraint("Coincident", 3, 2, 0, 1))
sketch11.addConstraint(Sketcher.Constraint("Coincident", 4, 2, 5, 1))
sketch11.addConstraint(Sketcher.Constraint("Coincident", 5, 2, 6, 1))
sketch11.addConstraint(Sketcher.Constraint("Coincident", 6, 2, 7, 1))
sketch11.addConstraint(Sketcher.Constraint("Coincident", 7, 2, 4, 1))
sketch11.addConstraint(Sketcher.Constraint("Coincident", 8, 2, 9, 1))
sketch11.addConstraint(Sketcher.Constraint("Coincident", 9, 2, 10, 1))
sketch11.addConstraint(Sketcher.Constraint("Coincident", 10, 2, 11, 1))
sketch11.addConstraint(Sketcher.Constraint("Coincident", 11, 2, 8, 1))
sketch11.addConstraint(Sketcher.Constraint("Coincident", 12, 2, 13, 1))
sketch11.addConstraint(Sketcher.Constraint("Coincident", 13, 2, 14, 1))
sketch11.addConstraint(Sketcher.Constraint("Coincident", 14, 2, 15, 1))
sketch11.addConstraint(Sketcher.Constraint("Coincident", 15, 2, 16, 1))
sketch11.addConstraint(Sketcher.Constraint("Coincident", 16, 2, 17, 1))
sketch11.addConstraint(Sketcher.Constraint("Coincident", 17, 2, 12, 1))
sketch11.addConstraint(Sketcher.Constraint("Coincident", 18, 2, 19, 1))
sketch11.addConstraint(Sketcher.Constraint("Coincident", 19, 2, 20, 1))
sketch11.addConstraint(Sketcher.Constraint("Coincident", 20, 2, 21, 1))
sketch11.addConstraint(Sketcher.Constraint("Coincident", 21, 2, 18, 1))
sketch11.addConstraint(Sketcher.Constraint("Vertical", 0))
sketch11.addConstraint(Sketcher.Constraint("Horizontal", 1))
sketch11.addConstraint(Sketcher.Constraint("Vertical", 2))
sketch11.addConstraint(Sketcher.Constraint("Horizontal", 3))
sketch11.addConstraint(Sketcher.Constraint("Vertical", 4))
sketch11.addConstraint(Sketcher.Constraint("Horizontal", 5))
sketch11.addConstraint(Sketcher.Constraint("Vertical", 6))
sketch11.addConstraint(Sketcher.Constraint("Horizontal", 7))
sketch11.addConstraint(Sketcher.Constraint("Vertical", 8))
sketch11.addConstraint(Sketcher.Constraint("Horizontal", 9))
sketch11.addConstraint(Sketcher.Constraint("Vertical", 10))
sketch11.addConstraint(Sketcher.Constraint("Horizontal", 11))
sketch11.addConstraint(Sketcher.Constraint("Horizontal", 12))
sketch11.addConstraint(Sketcher.Constraint("Vertical", 13))
sketch11.addConstraint(Sketcher.Constraint("Horizontal", 14))
sketch11.addConstraint(Sketcher.Constraint("Vertical", 15))
sketch11.addConstraint(Sketcher.Constraint("Horizontal", 16))
sketch11.addConstraint(Sketcher.Constraint("Vertical", 17))
sketch11.addConstraint(Sketcher.Constraint("Vertical", 18))
sketch11.addConstraint(Sketcher.Constraint("Horizontal", 19))
sketch11.addConstraint(Sketcher.Constraint("Vertical", 20))
sketch11.addConstraint(Sketcher.Constraint("Horizontal", 21))
sketch11.addConstraint(Sketcher.Constraint("Symmetric", 8, 2, 18, 2, -1, 1))
sketch11.addConstraint(Sketcher.Constraint("Symmetric", 1, 2, 4, 2, -2))
sketch11.addConstraint(Sketcher.Constraint("Symmetric", 8, 2, 12, 2, -2))
sketch11.addConstraint(Sketcher.Constraint("Symmetric", 10, 2, 16, 2, -2))
sketch11.addConstraint(Sketcher.Constraint("Horizontal", 3, 2, 6, 2))
sketch11.addConstraint(Sketcher.Constraint("Horizontal", 5, 2, 8, 2))
sketch11.addConstraint(Sketcher.Constraint("Horizontal", 7, 2, 10, 2))
sketch11.addConstraint(Sketcher.Constraint("Vertical", 15, 2, 19, 2))
sketch11.addConstraint(Sketcher.Constraint("Equal", 21, 0))
sketch11.addConstraint(Sketcher.Constraint("DistanceX", 9, 1, 9, 2, Q("0.1 in")))
sketch11.addConstraint(Sketcher.Constraint("DistanceX", 8, 2, 1, 2, Q("1 in")))
sketch11.addConstraint(Sketcher.Constraint("DistanceX", 14, 1, 14, 2, Q("0.08 in")))
sketch11.addConstraint(Sketcher.Constraint("DistanceY", -1, 1, 0, 2, Q("1.7 in")))
sketch11.addConstraint(Sketcher.Constraint("DistanceX", 1, 2, 4, 2, Q("0.3 in")))
sketch11.addConstraint(Sketcher.Constraint("DistanceY", 20, 2, 14, 2, Q("0.5 in")))
sketch11.addConstraint(Sketcher.Constraint("DistanceX", 1, 1, 1, 2, Q("15.203866 mm")))
sketch11.addConstraint(Sketcher.Constraint("DistanceX", 5, 1, 5, 2, Q("15.294992 mm")))
sketch11.addConstraint(Sketcher.Constraint("DistanceY", 13, 2, 13, 1, Q("36.842988 mm")))
pad11 = body.newObject("PartDesign::Pad", "Pad010")
pad11.Profile = sketch11
pad11.Length = Q("0.08 in")
pad11.Reversed = True
body9 = doc.addObject("PartDesign::Body", "Body008")

# Sketch on YZ plane
sketch12 = body9.newObject("Sketcher::SketchObject", "Sketch011")
sketch12.AttachmentSupport = (doc.getObject("YZ_Plane008"), [""])
sketch12.MapMode = "FlatFace"
sketch12.AttachmentOffset = App.Placement(V(0, 0, 1.15 * 25.4), App.Rotation())
sketch12.addGeometry(Part.LineSegment(V(13.1, -6.4, 0), V(11.3, -6.4, 0)), False)
sketch12.addGeometry(Part.LineSegment(V(11.3, -6.4, 0), V(11.3, 6.3, 0)), False)
sketch12.addGeometry(Part.LineSegment(V(11.3, 6.3, 0), V(13.1, 6.3, 0)), False)
sketch12.addGeometry(Part.LineSegment(V(13.1, 6.3, 0), V(13.1, -6.4, 0)), False)
sketch12.addConstraint(Sketcher.Constraint("Coincident", 0, 2, 1, 1))
sketch12.addConstraint(Sketcher.Constraint("Coincident", 1, 2, 2, 1))
sketch12.addConstraint(Sketcher.Constraint("Coincident", 2, 2, 3, 1))
sketch12.addConstraint(Sketcher.Constraint("Coincident", 3, 2, 0, 1))
sketch12.addConstraint(Sketcher.Constraint("Horizontal", 0))
sketch12.addConstraint(Sketcher.Constraint("Vertical", 1))
sketch12.addConstraint(Sketcher.Constraint("Horizontal", 2))
sketch12.addConstraint(Sketcher.Constraint("Vertical", 3))
sketch12.addConstraint(Sketcher.Constraint("DistanceY", 1, 1, 1, 2, Q("0.5 in")))
sketch12.addConstraint(Sketcher.Constraint("DistanceX", 0, 2, 0, 1, Q("0.07 in")))
sketch12.addConstraint(Sketcher.Constraint("DistanceX", -1, 1, 0, 2, Q("0.445 in")))
sketch12.addConstraint(Sketcher.Constraint("DistanceY", 0, 2, -1, 1, Q("6.362988 mm")))
pad12 = body9.newObject("PartDesign::Pad", "Pad011")
pad12.Profile = sketch12
pad12.Length = Q("0.12 in")
pad12.Reversed = True
body.AllowCompound = True
doc.recompute()

boolean8 = body.newObject("PartDesign::Boolean", "Boolean007")
boolean8.Type = "Fuse"
boolean8.addObjects([body9])

# Sketch on YZ plane
sketch13 = body.newObject("Sketcher::SketchObject", "Sketch012")
sketch13.AttachmentSupport = (doc.getObject("YZ_Plane"), [""])
sketch13.MapMode = "FlatFace"
sketch13.AttachmentOffset = App.Placement(V(0, 0, 1.15 * 25.4), App.Rotation())
sketch13.addGeometry(Part.LineSegment(V(13.1, -6.4, 0), V(11.3, -6.4, 0)), False)
sketch13.addGeometry(Part.LineSegment(V(11.3, -6.4, 0), V(11.3, 6.3, 0)), False)
sketch13.addGeometry(Part.LineSegment(V(11.3, 6.3, 0), V(13.1, 6.3, 0)), False)
sketch13.addGeometry(Part.LineSegment(V(13.1, 6.3, 0), V(13.1, -6.4, 0)), False)
sketch13.addConstraint(Sketcher.Constraint("Coincident", 0, 2, 1, 1))
sketch13.addConstraint(Sketcher.Constraint("Coincident", 1, 2, 2, 1))
sketch13.addConstraint(Sketcher.Constraint("Coincident", 2, 2, 3, 1))
sketch13.addConstraint(Sketcher.Constraint("Coincident", 3, 2, 0, 1))
sketch13.addConstraint(Sketcher.Constraint("Horizontal", 0))
sketch13.addConstraint(Sketcher.Constraint("Vertical", 1))
sketch13.addConstraint(Sketcher.Constraint("Horizontal", 2))
sketch13.addConstraint(Sketcher.Constraint("Vertical", 3))
sketch13.addConstraint(Sketcher.Constraint("DistanceY", 1, 1, 1, 2, Q("0.5 in")))
sketch13.addConstraint(Sketcher.Constraint("DistanceX", 0, 2, 0, 1, Q("0.07 in")))
sketch13.addConstraint(Sketcher.Constraint("DistanceX", -1, 1, 0, 2, Q("0.445 in")))
sketch13.addConstraint(Sketcher.Constraint("DistanceY", 0, 2, -1, 1, Q("6.362988 mm")))
pad13 = body.newObject("PartDesign::Pad", "Pad012")
pad13.Profile = sketch13
pad13.Length = Q("0.08 in")

# Sketch on XZ plane
sketch14 = body.newObject("Sketcher::SketchObject", "Sketch013")
sketch14.AttachmentSupport = (doc.getObject("XZ_Plane"), [""])
sketch14.MapMode = "FlatFace"
sketch14.addGeometry(Part.LineSegment(V(-29, 45, 0), V(-29, -43, 0)), False)
sketch14.addGeometry(Part.LineSegment(V(-29, -43, 0), V(31, -43, 0)), False)
sketch14.addGeometry(Part.LineSegment(V(31, -43, 0), V(31, 45, 0)), False)
sketch14.addGeometry(Part.LineSegment(V(31, 45, 0), V(-29, 45, 0)), False)
sketch14.addConstraint(Sketcher.Constraint("Coincident", 0, 2, 1, 1))
sketch14.addConstraint(Sketcher.Constraint("Coincident", 1, 2, 2, 1))
sketch14.addConstraint(Sketcher.Constraint("Coincident", 2, 2, 3, 1))
sketch14.addConstraint(Sketcher.Constraint("Coincident", 3, 2, 0, 1))
sketch14.addConstraint(Sketcher.Constraint("Vertical", 0))
sketch14.addConstraint(Sketcher.Constraint("Horizontal", 1))
sketch14.addConstraint(Sketcher.Constraint("Vertical", 2))
sketch14.addConstraint(Sketcher.Constraint("Horizontal", 3))
sketch14.addConstraint(Sketcher.Constraint("DistanceX", 1, 1, 1, 2, Q("2.38 in")))
sketch14.addConstraint(Sketcher.Constraint("DistanceY", 0, 2, 0, 1, Q("3.48 in")))
sketch14.addConstraint(Sketcher.Constraint("DistanceY", 0, 2, -1, 1, Q("1.7 in")))
sketch14.addConstraint(Sketcher.Constraint("DistanceX", 0, 2, -1, 1, Q("1.15 in")))
pad14 = body.newObject("PartDesign::Pad", "Pad013")
pad14.Profile = sketch14
pad14.Length = Q("0.16 in")

# Sketch on YZ plane
sketch15 = body.newObject("Sketcher::SketchObject", "Sketch014")
sketch15.AttachmentSupport = (doc.getObject("YZ_Plane"), [""])
sketch15.MapMode = "FlatFace"
sketch15.AttachmentOffset = App.Placement(V(0, 0, -1.15 * 25.4), App.Rotation())
sketch15.addGeometry(Part.LineSegment(V(0.3, -27.9, 0), V(-2.3, -27.9, 0)), False)
sketch15.addGeometry(Part.LineSegment(V(-2.3, -27.9, 0), V(-2.3, -15.2, 0)), False)
sketch15.addGeometry(Part.LineSegment(V(-2.3, -15.2, 0), V(0.3, -15.2, 0)), False)
sketch15.addGeometry(Part.LineSegment(V(0.3, -15.2, 0), V(0.3, -27.9, 0)), False)
sketch15.addGeometry(Part.LineSegment(V(0.3, 15.2, 0), V(-2.3, 15.2, 0)), False)
sketch15.addGeometry(Part.LineSegment(V(-2.3, 15.2, 0), V(-2.3, 27.9, 0)), False)
sketch15.addGeometry(Part.LineSegment(V(-2.3, 27.9, 0), V(0.3, 27.9, 0)), False)
sketch15.addGeometry(Part.LineSegment(V(0.3, 27.9, 0), V(0.3, 15.2, 0)), False)
sketch15.addConstraint(Sketcher.Constraint("Coincident", 0, 2, 1, 1))
sketch15.addConstraint(Sketcher.Constraint("Coincident", 1, 2, 2, 1))
sketch15.addConstraint(Sketcher.Constraint("Coincident", 2, 2, 3, 1))
sketch15.addConstraint(Sketcher.Constraint("Coincident", 3, 2, 0, 1))
sketch15.addConstraint(Sketcher.Constraint("Coincident", 4, 2, 5, 1))
sketch15.addConstraint(Sketcher.Constraint("Coincident", 5, 2, 6, 1))
sketch15.addConstraint(Sketcher.Constraint("Coincident", 6, 2, 7, 1))
sketch15.addConstraint(Sketcher.Constraint("Coincident", 7, 2, 4, 1))
sketch15.addConstraint(Sketcher.Constraint("Horizontal", 0))
sketch15.addConstraint(Sketcher.Constraint("Vertical", 1))
sketch15.addConstraint(Sketcher.Constraint("Horizontal", 2))
sketch15.addConstraint(Sketcher.Constraint("Vertical", 3))
sketch15.addConstraint(Sketcher.Constraint("Horizontal", 4))
sketch15.addConstraint(Sketcher.Constraint("Vertical", 5))
sketch15.addConstraint(Sketcher.Constraint("Horizontal", 6))
sketch15.addConstraint(Sketcher.Constraint("Vertical", 7))
sketch15.addConstraint(Sketcher.Constraint("Symmetric", 1, 2, 4, 2, -1))
sketch15.addConstraint(Sketcher.Constraint("Symmetric", 3, 2, 6, 2, -1))
sketch15.addConstraint(Sketcher.Constraint("DistanceX", 0, 2, 0, 1, Q("0.1 in")))
sketch15.addConstraint(Sketcher.Constraint("DistanceY", 1, 1, 1, 2, Q("0.5 in")))
sketch15.addConstraint(Sketcher.Constraint("DistanceY", 0, 2, -1, 1, Q("1.1 in")))
sketch15.addConstraint(Sketcher.Constraint("DistanceX", 0, 2, -1, 1, Q("0.09 in")))
pocket1 = body.newObject("PartDesign::Pocket", "Pocket")
pocket1.Profile = sketch15
pocket1.Type = "ThroughAll"
pocket1.Reversed = True

doc.recompute()
